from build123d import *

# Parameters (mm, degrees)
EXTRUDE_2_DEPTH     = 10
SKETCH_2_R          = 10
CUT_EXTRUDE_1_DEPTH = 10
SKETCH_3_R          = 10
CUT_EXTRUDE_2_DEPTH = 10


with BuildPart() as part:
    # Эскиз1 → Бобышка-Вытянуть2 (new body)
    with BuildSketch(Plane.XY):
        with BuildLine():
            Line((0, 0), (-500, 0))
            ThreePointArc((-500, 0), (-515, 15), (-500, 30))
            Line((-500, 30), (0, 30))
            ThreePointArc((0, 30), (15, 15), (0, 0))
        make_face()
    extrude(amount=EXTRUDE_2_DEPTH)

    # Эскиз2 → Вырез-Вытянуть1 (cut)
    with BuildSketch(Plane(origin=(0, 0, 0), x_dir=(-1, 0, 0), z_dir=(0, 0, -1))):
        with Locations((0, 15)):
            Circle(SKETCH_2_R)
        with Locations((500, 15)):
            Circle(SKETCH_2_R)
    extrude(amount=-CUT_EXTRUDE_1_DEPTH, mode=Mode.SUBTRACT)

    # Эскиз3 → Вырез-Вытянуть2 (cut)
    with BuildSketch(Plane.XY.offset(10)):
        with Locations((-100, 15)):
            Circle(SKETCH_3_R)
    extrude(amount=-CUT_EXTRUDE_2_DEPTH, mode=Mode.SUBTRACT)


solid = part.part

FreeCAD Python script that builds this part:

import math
import FreeCAD as App
import Part
import Sketcher
Q = App.Units.Quantity

doc = App.newDocument("Part")
body = doc.addObject("PartDesign::Body", "Body")

sketch1 = doc.addObject("Sketcher::SketchObject", "Sketch")
body.addObject(sketch1)
sketch1.AttachmentSupport = (doc.XY_Plane, [""])
sketch1.MapMode = "FlatFace"
sketch1.addGeometry(Part.LineSegment(App.Vector(-500, 0, 0), App.Vector(0, 0, 0)), False)
sketch1.addGeometry(Part.ArcOfCircle(Part.Circle(App.Vector(0, 15, 0), App.Vector(0, 0, 1), 15), math.radians(-90), math.radians(90)), False)
sketch1.addGeometry(Part.LineSegment(App.Vector(0, 30, 0), App.Vector(-500, 30, 0)), False)
sketch1.addGeometry(Part.ArcOfCircle(Part.Circle(App.Vector(-500, 15, 0), App.Vector(0, 0, 1), 15), math.radians(90), math.radians(270)), False)
sketch1.addConstraint(Sketcher.Constraint("Tangent", 0, 2, 1, 1))
sketch1.addConstraint(Sketcher.Constraint("Tangent", 1, 2, 2, 1))
sketch1.addConstraint(Sketcher.Constraint("Tangent", 2, 2, 3, 1))
sketch1.addConstraint(Sketcher.Constraint("Tangent", 3, 2, 0, 1))
sketch1.addConstraint(Sketcher.Constraint("Horizontal", 0))
sketch1.addConstraint(Sketcher.Constraint("Horizontal", 2))
sketch1.addConstraint(Sketcher.Constraint("Coincident", 0, 2, -1, 1))
sketch1.addConstraint(Sketcher.Constraint("Radius", 1, Q("15 mm")))
sketch1.addConstraint(Sketcher.Constraint("DistanceX", 0, 1, 0, 2, Q("500 mm")))
pad1 = doc.addObject("PartDesign::Pad", "Pad")
body.addObject(pad1)
pad1.Profile = sketch1
pad1.Length = 10

sketch2 = doc.addObject("Sketcher::SketchObject", "Sketch001")
body.addObject(sketch2)
sketch2.AttachmentSupport = (doc.XY_Plane, [""])
sketch2.MapMode = "FlatFace"
sketch2.addGeometry(Part.Circle(App.Vector(0, 15, 0), App.Vector(0, 0, 1), 10), False)
sketch2.addGeometry(Part.Circle(App.Vector(-500, 15, 0), App.Vector(0, 0, 1), 10), False)
sketch2.addConstraint(Sketcher.Constraint("Equal", 0, 1))
sketch2.addConstraint(Sketcher.Constraint("PointOnObject", 0, 3, -2))
sketch2.addConstraint(Sketcher.Constraint("Horizontal", 0, 3, 1, 3))
sketch2.addConstraint(Sketcher.Constraint("Diameter", 0, Q("20 mm")))
sketch2.addConstraint(Sketcher.Constraint("DistanceY", -1, 1, 0, 3, Q("15 mm")))
sketch2.addConstraint(Sketcher.Constraint("DistanceX", 1, 3, -1, 1, Q("500 mm")))
pocket1 = doc.addObject("PartDesign::Pocket", "Pocket")
body.addObject(pocket1)
pocket1.Profile = sketch2
pocket1.Length = 10
pocket1.Reversed = True

sketch3 = doc.addObject("Sketcher::SketchObject", "Sketch002")
body.addObject(sketch3)
sketch3.AttachmentSupport = (doc.XY_Plane, [""])
sketch3.MapMode = "FlatFace"
sketch3.AttachmentOffset = App.Placement(App.Vector(0, 0, 10), App.Rotation())
sketch3.addGeometry(Part.Circle(App.Vector(-100, 15, 0), App.Vector(0, 0, 1), 10), False)
sketch3.addConstraint(Sketcher.Constraint("Diameter", 0, Q("20 mm")))
sketch3.addConstraint(Sketcher.Constraint("DistanceX", 0, 3, -1, 1, Q("100 mm")))
sketch3.addConstraint(Sketcher.Constraint("DistanceY", -1, 1, 0, 3, Q("15 mm")))
pocket2 = doc.addObject("PartDesign::Pocket", "Pocket001")
body.addObject(pocket2)
pocket2.Profile = sketch3
pocket2.Length = 10

doc.recompute()
